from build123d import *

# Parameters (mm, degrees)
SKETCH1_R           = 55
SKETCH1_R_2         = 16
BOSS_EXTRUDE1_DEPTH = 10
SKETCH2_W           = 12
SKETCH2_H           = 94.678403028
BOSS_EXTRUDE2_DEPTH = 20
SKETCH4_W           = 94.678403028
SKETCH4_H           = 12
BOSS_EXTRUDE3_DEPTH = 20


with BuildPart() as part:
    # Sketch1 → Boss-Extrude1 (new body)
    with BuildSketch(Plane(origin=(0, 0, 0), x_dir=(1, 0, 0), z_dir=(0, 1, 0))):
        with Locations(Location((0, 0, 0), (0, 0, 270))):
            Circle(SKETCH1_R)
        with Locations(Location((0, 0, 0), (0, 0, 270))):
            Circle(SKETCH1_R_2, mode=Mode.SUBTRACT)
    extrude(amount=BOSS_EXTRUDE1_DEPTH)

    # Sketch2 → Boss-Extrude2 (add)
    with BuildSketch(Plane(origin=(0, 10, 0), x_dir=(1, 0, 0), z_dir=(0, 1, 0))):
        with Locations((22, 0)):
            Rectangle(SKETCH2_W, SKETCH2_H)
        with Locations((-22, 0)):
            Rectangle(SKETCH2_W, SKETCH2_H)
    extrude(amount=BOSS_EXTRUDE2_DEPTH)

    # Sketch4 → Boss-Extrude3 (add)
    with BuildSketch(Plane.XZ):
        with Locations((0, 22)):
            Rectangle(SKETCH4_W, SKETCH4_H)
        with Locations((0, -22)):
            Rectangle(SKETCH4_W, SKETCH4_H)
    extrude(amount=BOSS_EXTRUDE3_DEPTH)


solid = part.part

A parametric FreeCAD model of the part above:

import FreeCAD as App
import Part
import Sketcher
Q = App.Units.Quantity

doc = App.newDocument("Part")
params = doc.addObject("Spreadsheet::Sheet", "Params")
for row, (alias, value) in enumerate([
    ("sketch1_diameter", "110 mm"),
    ("sketch1_diameter2", "32 mm"),
    ("pad1_length", "10 mm"),
    ("sketch2_width", "12 mm"),
    ("pad2_length", "20 mm"),
    ("sketch3_height", "12 mm"),
    ("pad3_length", "20 mm"),
], start=1):
    params.set(f"A{row}", alias)
    params.set(f"B{row}", "=" + value)
    params.setAlias(f"B{row}", alias)

body = doc.addObject("PartDesign::Body", "Body")

# Sketch on XZ plane
sketch1 = body.newObject("Sketcher::SketchObject", "Sketch")
sketch1.AttachmentSupport = (doc.getObject("XZ_Plane"), [""])
sketch1.MapMode = "FlatFace"
sketch1.addGeometry([
    Part.Circle(App.Vector(0, 0, 0), App.Vector(0, 0, 1), 55),
    Part.Circle(App.Vector(0, 0, 0), App.Vector(0, 0, 1), 16),
], False)
sketch1.addConstraint([
    Sketcher.Constraint("Coincident", 0, 3, -1, 1),
    Sketcher.Constraint("Coincident", 1, 3, -1, 1),
    Sketcher.Constraint("Diameter", 0, Q("110 mm")),
    Sketcher.Constraint("Diameter", 1, Q("32 mm")),
])
sketch1.setExpression("Constraints[2]", "Params.sketch1_diameter")
sketch1.setExpression("Constraints[3]", "Params.sketch1_diameter2")
pad1 = body.newObject("PartDesign::Pad", "Pad")
pad1.Profile = sketch1
pad1.setExpression("Length", "Params.pad1_length")
pad1.Reversed = True

# Sketch on XZ plane
sketch2 = body.newObject("Sketcher::SketchObject", "Sketch001")
sketch2.AttachmentSupport = (doc.getObject("XZ_Plane"), [""])
sketch2.MapMode = "FlatFace"
sketch2.AttachmentOffset = App.Placement(App.Vector(0, 0, -10), App.Rotation())
sketch2.addGeometry([
    Part.LineSegment(App.Vector(16, -47, 0), App.Vector(16, 47, 0)),  # 0
    Part.LineSegment(App.Vector(16, 47, 0), App.Vector(28, 47, 0)),  # 1
    Part.LineSegment(App.Vector(28, 47, 0), App.Vector(28, -47, 0)),  # 2
    Part.LineSegment(App.Vector(28, -47, 0), App.Vector(16, -47, 0)),  # 3
    Part.LineSegment(App.Vector(-28, -47, 0), App.Vector(-28, 47, 0)),  # 4
    Part.LineSegment(App.Vector(-28, 47, 0), App.Vector(-16, 47, 0)),  # 5
    Part.LineSegment(App.Vector(-16, 47, 0), App.Vector(-16, -47, 0)),  # 6
    Part.LineSegment(App.Vector(-16, -47, 0), App.Vector(-28, -47, 0)),  # 7
], False)
sketch2.addConstraint([
    Sketcher.Constraint("Coincident", 0, 2, 1, 1),
    Sketcher.Constraint("Coincident", 1, 2, 2, 1),
    Sketcher.Constraint("Coincident", 2, 2, 3, 1),
    Sketcher.Constraint("Coincident", 3, 2, 0, 1),
    Sketcher.Constraint("Coincident", 4, 2, 5, 1),
    Sketcher.Constraint("Coincident", 5, 2, 6, 1),
    Sketcher.Constraint("Coincident", 6, 2, 7, 1),
    Sketcher.Constraint("Coincident", 7, 2, 4, 1),
    Sketcher.Constraint("Vertical", 0),
    Sketcher.Constraint("Horizontal", 1),
    Sketcher.Constraint("Vertical", 2),
    Sketcher.Constraint("Horizontal", 3),
    Sketcher.Constraint("Vertical", 4),
    Sketcher.Constraint("Horizontal", 5),
    Sketcher.Constraint("Vertical", 6),
    Sketcher.Constraint("Horizontal", 7),
    Sketcher.Constraint("Symmetric", 2, 2, 4, 2, -1, 1),
    Sketcher.Constraint("Symmetric", 0, 2, 6, 2, -1, 1),
    Sketcher.Constraint("Horizontal", 1, 2, 4, 2),
    Sketcher.Constraint("DistanceX", 1, 1, 1, 2, Q("12 mm")),
    Sketcher.Constraint("DistanceX", -1, 1, 0, 2, Q("16 mm")),
    Sketcher.Constraint("DistanceY", -1, 1, 0, 2, Q("47.339202 mm")),
])
sketch2.setExpression("Constraints[19]", "Params.sketch2_width")
pad2 = body.newObject("PartDesign::Pad", "Pad001")
pad2.Profile = sketch2
pad2.setExpression("Length", "Params.pad2_length")
pad2.Reversed = True

# Sketch on XZ plane
sketch3 = body.newObject("Sketcher::SketchObject", "Sketch002")
sketch3.AttachmentSupport = (doc.getObject("XZ_Plane"), [""])
sketch3.MapMode = "FlatFace"
sketch3.addGeometry([
    Part.LineSegment(App.Vector(-47, 28, 0), App.Vector(-47, 16, 0)),  # 0
    Part.LineSegment(App.Vector(-47, 16, 0), App.Vector(47, 16, 0)),  # 1
    Part.LineSegment(App.Vector(47, 16, 0), App.Vector(47, 28, 0)),  # 2
    Part.LineSegment(App.Vector(47, 28, 0), App.Vector(-47, 28, 0)),  # 3
    Part.LineSegment(App.Vector(-47, -16, 0), App.Vector(-47, -28, 0)),  # 4
    Part.LineSegment(App.Vector(-47, -28, 0), App.Vector(47, -28, 0)),  # 5
    Part.LineSegment(App.Vector(47, -28, 0), App.Vector(47, -16, 0)),  # 6
    Part.LineSegment(App.Vector(47, -16, 0), App.Vector(-47, -16, 0)),  # 7
], False)
sketch3.addConstraint([
    Sketcher.Constraint("Coincident", 0, 2, 1, 1),
    Sketcher.Constraint("Coincident", 1, 2, 2, 1),
    Sketcher.Constraint("Coincident", 2, 2, 3, 1),
    Sketcher.Constraint("Coincident", 3, 2, 0, 1),
    Sketcher.Constraint("Coincident", 4, 2, 5, 1),
    Sketcher.Constraint("Coincident", 5, 2, 6, 1),
    Sketcher.Constraint("Coincident", 6, 2, 7, 1),
    Sketcher.Constraint("Coincident", 7, 2, 4, 1),
    Sketcher.Constraint("Vertical", 0),
    Sketcher.Constraint("Horizontal", 1),
    Sketcher.Constraint("Vertical", 2),
    Sketcher.Constraint("Horizontal", 3),
    Sketcher.Constraint("Vertical", 4),
    Sketcher.Constraint("Horizontal", 5),
    Sketcher.Constraint("Vertical", 6),
    Sketcher.Constraint("Horizontal", 7),
    Sketcher.Constraint("Symmetric", 2, 2, 4, 2, -1, 1),
    Sketcher.Constraint("Symmetric", 0, 2, 6, 2, -1, 1),
    Sketcher.Constraint("Vertical", 3, 2, 4, 2),
    Sketcher.Constraint("DistanceY", 0, 2, 0, 1, Q("12 mm")),
    Sketcher.Constraint("DistanceY", -1, 1, 0, 2, Q("16 mm")),
    Sketcher.Constraint("DistanceX", 0, 2, -1, 1, Q("47.339202 mm")),
])
sketch3.setExpression("Constraints[19]", "Params.sketch3_height")
pad3 = body.newObject("PartDesign::Pad", "Pad002")
pad3.Profile = sketch3
pad3.setExpression("Length", "Params.pad3_length")

doc.recompute()
